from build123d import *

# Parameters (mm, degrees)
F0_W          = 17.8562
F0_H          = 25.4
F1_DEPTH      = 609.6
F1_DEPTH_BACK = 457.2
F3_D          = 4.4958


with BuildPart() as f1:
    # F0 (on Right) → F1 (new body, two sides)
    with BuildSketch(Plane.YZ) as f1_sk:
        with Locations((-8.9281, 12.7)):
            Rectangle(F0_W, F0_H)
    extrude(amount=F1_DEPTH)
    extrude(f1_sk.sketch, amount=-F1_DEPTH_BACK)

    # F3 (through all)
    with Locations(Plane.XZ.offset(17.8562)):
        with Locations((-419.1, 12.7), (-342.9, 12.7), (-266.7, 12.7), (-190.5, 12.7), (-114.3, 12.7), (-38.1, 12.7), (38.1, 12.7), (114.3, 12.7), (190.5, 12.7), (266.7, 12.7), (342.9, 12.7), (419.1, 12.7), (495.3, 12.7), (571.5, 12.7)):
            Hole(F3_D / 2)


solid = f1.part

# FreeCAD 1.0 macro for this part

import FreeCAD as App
import Part
import Sketcher
Q = App.Units.Quantity


def add_polygon(sketch, points):
    """Adds a closed chain of lines whose ends are joined by coincident constraints."""
    first, n = sketch.GeometryCount, len(points)
    for a, b in zip(points, points[1:] + points[:1]):
        sketch.addGeometry(Part.LineSegment(App.Vector(*a, 0), App.Vector(*b, 0)), False)
    for i in range(n):
        sketch.addConstraint(Sketcher.Constraint("Coincident", first + i, 2, first + (i + 1) % n, 1))

doc = App.newDocument("Part")
params = doc.addObject("Spreadsheet::Sheet", "Params")
for row, (alias, value) in enumerate([
    ("sketch1_height", "1 in"),
    ("sketch1_width", "0.703 in"),
    ("pad1_length", "24 in"),
    ("pad1_length2", "18 in"),
    ("sketch2_diameter", "0.177 in"),
    ("hole_diameter", "0.177 in"),
], start=1):
    params.set(f"A{row}", alias)
    params.set(f"B{row}", "=" + value)
    params.setAlias(f"B{row}", alias)

body = doc.addObject("PartDesign::Body", "Body")

sketch1 = doc.addObject("Sketcher::SketchObject", "Sketch")
body.addObject(sketch1)
sketch1.AttachmentSupport = (doc.YZ_Plane, [""])
sketch1.MapMode = "FlatFace"
add_polygon(sketch1, [(-17.8562, 25.4), (-17.8562, 0), (0, 0), (0, 25.4)])
sketch1.addConstraint(Sketcher.Constraint("Vertical", 0))
sketch1.addConstraint(Sketcher.Constraint("Horizontal", 1))
sketch1.addConstraint(Sketcher.Constraint("Vertical", 2))
sketch1.addConstraint(Sketcher.Constraint("Horizontal", 3))
sketch1.addConstraint(Sketcher.Constraint("Coincident", 1, 2, -1, 1))
sketch1.addConstraint(Sketcher.Constraint("DistanceY", 0, 2, 0, 1, Q("1 in")))
sketch1.addConstraint(Sketcher.Constraint("DistanceX", 1, 1, 1, 2, Q("0.703 in")))
sketch1.setExpression("Constraints[9]", "Params.sketch1_height")
sketch1.setExpression("Constraints[10]", "Params.sketch1_width")
pad1 = doc.addObject("PartDesign::Pad", "Pad")
body.addObject(pad1)
pad1.Profile = sketch1
pad1.Type = "TwoLengths"
pad1.setExpression("Length", "Params.pad1_length")
pad1.setExpression("Length2", "Params.pad1_length2")

sketch2 = doc.addObject("Sketcher::SketchObject", "Sketch001")
body.addObject(sketch2)
sketch2.AttachmentSupport = (doc.XZ_Plane, [""])
sketch2.MapMode = "FlatFace"
sketch2.AttachmentOffset = App.Placement(App.Vector(0, 0, 0.703 * 25.4), App.Rotation())
sketch2.addGeometry(Part.Circle(App.Vector(-419.1, 12.7, 0), App.Vector(0, 0, 1), 2.2479), False)
sketch2.addGeometry(Part.Circle(App.Vector(-342.9, 12.7, 0), App.Vector(0, 0, 1), 2.2479), False)
sketch2.addGeometry(Part.Circle(App.Vector(-266.7, 12.7, 0), App.Vector(0, 0, 1), 2.2479), False)
sketch2.addGeometry(Part.Circle(App.Vector(-190.5, 12.7, 0), App.Vector(0, 0, 1), 2.2479), False)
sketch2.addGeometry(Part.Circle(App.Vector(-114.3, 12.7, 0), App.Vector(0, 0, 1), 2.2479), False)
sketch2.addGeometry(Part.Circle(App.Vector(-38.1, 12.7, 0), App.Vector(0, 0, 1), 2.2479), False)
sketch2.addGeometry(Part.Circle(App.Vector(38.1, 12.7, 0), App.Vector(0, 0, 1), 2.2479), False)
sketch2.addGeometry(Part.Circle(App.Vector(114.3, 12.7, 0), App.Vector(0, 0, 1), 2.2479), False)
sketch2.addGeometry(Part.Circle(App.Vector(190.5, 12.7, 0), App.Vector(0, 0, 1), 2.2479), False)
sketch2.addGeometry(Part.Circle(App.Vector(266.7, 12.7, 0), App.Vector(0, 0, 1), 2.2479), False)
sketch2.addGeometry(Part.Circle(App.Vector(342.9, 12.7, 0), App.Vector(0, 0, 1), 2.2479), False)
sketch2.addGeometry(Part.Circle(App.Vector(419.1, 12.7, 0), App.Vector(0, 0, 1), 2.2479), False)
sketch2.addGeometry(Part.Circle(App.Vector(495.3, 12.7, 0), App.Vector(0, 0, 1), 2.2479), False)
sketch2.addGeometry(Part.Circle(App.Vector(571.5, 12.7, 0), App.Vector(0, 0, 1), 2.2479), False)
sketch2.addConstraint(Sketcher.Constraint("Equal", 0, 1))
sketch2.addConstraint(Sketcher.Constraint("Equal", 1, 2))
sketch2.addConstraint(Sketcher.Constraint("Equal", 2, 3))
sketch2.addConstraint(Sketcher.Constraint("Equal", 3, 4))
sketch2.addConstraint(Sketcher.Constraint("Equal", 4, 5))
sketch2.addConstraint(Sketcher.Constraint("Equal", 5, 6))
sketch2.addConstraint(Sketcher.Constraint("Equal", 6, 7))
sketch2.addConstraint(Sketcher.Constraint("Equal", 7, 8))
sketch2.addConstraint(Sketcher.Constraint("Equal", 8, 9))
sketch2.addConstraint(Sketcher.Constraint("Equal", 9, 10))
sketch2.addConstraint(Sketcher.Constraint("Equal", 10, 11))
sketch2.addConstraint(Sketcher.Constraint("Equal", 11, 12))
sketch2.addConstraint(Sketcher.Constraint("Equal", 12, 13))
sketch2.addConstraint(Sketcher.Constraint("Symmetric", 5, 3, 6, 3, -2))
sketch2.addConstraint(Sketcher.Constraint("Symmetric", 4, 3, 7, 3, -2))
sketch2.addConstraint(Sketcher.Constraint("Symmetric", 3, 3, 8, 3, -2))
sketch2.addConstraint(Sketcher.Constraint("Symmetric", 2, 3, 9, 3, -2))
sketch2.addConstraint(Sketcher.Constraint("Symmetric", 1, 3, 10, 3, -2))
sketch2.addConstraint(Sketcher.Constraint("Symmetric", 0, 3, 11, 3, -2))
sketch2.addConstraint(Sketcher.Constraint("Horizontal", 0, 3, 1, 3))
sketch2.addConstraint(Sketcher.Constraint("Horizontal", 1, 3, 2, 3))
sketch2.addConstraint(Sketcher.Constraint("Horizontal", 2, 3, 3, 3))
sketch2.addConstraint(Sketcher.Constraint("Horizontal", 3, 3, 4, 3))
sketch2.addConstraint(Sketcher.Constraint("Horizontal", 4, 3, 5, 3))
sketch2.addConstraint(Sketcher.Constraint("Horizontal", 11, 3, 12, 3))
sketch2.addConstraint(Sketcher.Constraint("Horizontal", 12, 3, 13, 3))
sketch2.addConstraint(Sketcher.Constraint("Diameter", 0, Q("0.177 in")))
sketch2.addConstraint(Sketcher.Constraint("DistanceX", 0, 3, 1, 3, Q("3 in")))
sketch2.addConstraint(Sketcher.Constraint("DistanceX", 1, 3, 2, 3, Q("3 in")))
sketch2.addConstraint(Sketcher.Constraint("DistanceX", 2, 3, 3, 3, Q("3 in")))
sketch2.addConstraint(Sketcher.Constraint("DistanceX", 3, 3, 4, 3, Q("3 in")))
sketch2.addConstraint(Sketcher.Constraint("DistanceX", 4, 3, 5, 3, Q("3 in")))
sketch2.addConstraint(Sketcher.Constraint("DistanceX", 5, 3, 6, 3, Q("3 in")))
sketch2.addConstraint(Sketcher.Constraint("DistanceX", 11, 3, 12, 3, Q("3 in")))
sketch2.addConstraint(Sketcher.Constraint("DistanceX", 12, 3, 13, 3, Q("3 in")))
sketch2.addConstraint(Sketcher.Constraint("DistanceY", -1, 1, 0, 3, Q("0.5 in")))
sketch2.setExpression("Constraints[26]", "Params.sketch2_diameter")
doc.recompute()
hole = doc.addObject("PartDesign::Hole", "Hole")
body.addObject(hole)
hole.Profile = sketch2
hole.ThreadType = "None"
hole.setExpression("Diameter", "Params.hole_diameter")
hole.DepthType = "ThroughAll"

doc.recompute()
